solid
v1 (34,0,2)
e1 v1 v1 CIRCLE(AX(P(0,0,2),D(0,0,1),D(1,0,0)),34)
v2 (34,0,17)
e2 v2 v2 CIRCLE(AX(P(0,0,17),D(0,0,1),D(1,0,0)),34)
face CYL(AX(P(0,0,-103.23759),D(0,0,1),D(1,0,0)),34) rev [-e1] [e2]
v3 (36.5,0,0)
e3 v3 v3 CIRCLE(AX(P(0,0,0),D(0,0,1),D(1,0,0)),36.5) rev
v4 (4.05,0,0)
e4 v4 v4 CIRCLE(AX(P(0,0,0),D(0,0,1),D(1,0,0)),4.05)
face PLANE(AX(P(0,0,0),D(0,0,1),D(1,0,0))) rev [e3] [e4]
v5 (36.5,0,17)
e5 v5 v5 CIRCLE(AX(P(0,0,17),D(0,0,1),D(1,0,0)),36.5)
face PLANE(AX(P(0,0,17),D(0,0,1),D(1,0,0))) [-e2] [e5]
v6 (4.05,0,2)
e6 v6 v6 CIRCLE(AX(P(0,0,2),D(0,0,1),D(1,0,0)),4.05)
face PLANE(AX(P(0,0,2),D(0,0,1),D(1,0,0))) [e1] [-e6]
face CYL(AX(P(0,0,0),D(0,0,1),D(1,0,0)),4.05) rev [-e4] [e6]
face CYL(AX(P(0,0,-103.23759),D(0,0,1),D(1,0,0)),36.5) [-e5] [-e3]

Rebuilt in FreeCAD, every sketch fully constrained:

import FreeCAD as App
import Part
import Sketcher
Q = App.Units.Quantity

doc = App.newDocument("Part")
body = doc.addObject("PartDesign::Body", "Body")

sketch1 = body.newObject("Sketcher::SketchObject", "Sketch")
sketch1.AttachmentSupport = (doc.getObject("XY_Plane"), [""])
sketch1.MapMode = "FlatFace"
sketch1.addGeometry(Part.Circle(App.Vector(0, 0, 0), App.Vector(0, 0, 1), 34), False)
sketch1.addConstraint(Sketcher.Constraint("Coincident", 0, 3, -1, 1))
sketch1.addConstraint(Sketcher.Constraint("Diameter", 0, Q("68 mm")))
pad1 = body.newObject("PartDesign::Pad", "Pad")
pad1.Profile = sketch1
pad1.Length = 2

sketch2 = body.newObject("Sketcher::SketchObject", "Sketch001")
sketch2.AttachmentSupport = (doc.getObject("XY_Plane"), [""])
sketch2.MapMode = "FlatFace"
sketch2.AttachmentOffset = App.Placement(App.Vector(0, 0, 2), App.Rotation())
sketch2.addGeometry(Part.Circle(App.Vector(0, 0, 0), App.Vector(0, 0, 1), 36), False)
sketch2.addGeometry(Part.Circle(App.Vector(0, 0, 0), App.Vector(0, 0, 1), 34), False)
sketch2.addConstraint(Sketcher.Constraint("Coincident", 0, 3, -1, 1))
sketch2.addConstraint(Sketcher.Constraint("Coincident", 1, 3, -1, 1))
sketch2.addConstraint(Sketcher.Constraint("Diameter", 0, Q("73 mm")))
sketch2.addConstraint(Sketcher.Constraint("Diameter", 1, Q("68 mm")))
pad2 = body.newObject("PartDesign::Pad", "Pad001")
pad2.Profile = sketch2
pad2.Type = "TwoLengths"
pad2.Length = 15
pad2.Length2 = 2

sketch3 = body.newObject("Sketcher::SketchObject", "Sketch002")
sketch3.AttachmentSupport = (doc.getObject("XY_Plane"), [""])
sketch3.MapMode = "FlatFace"
sketch3.AttachmentOffset = App.Placement(App.Vector(0, 0, 2), App.Rotation())
sketch3.addGeometry(Part.Circle(App.Vector(0, 0, 0), App.Vector(0, 0, 1), 4), False)
sketch3.addConstraint(Sketcher.Constraint("Coincident", 0, 3, -1, 1))
sketch3.addConstraint(Sketcher.Constraint("Diameter", 0, Q("8.1 mm")))
pocket1 = body.newObject("PartDesign::Pocket", "Pocket")
pocket1.Profile = sketch3
pocket1.Type = "ThroughAll"
pocket1.Midplane = True

doc.recompute()
